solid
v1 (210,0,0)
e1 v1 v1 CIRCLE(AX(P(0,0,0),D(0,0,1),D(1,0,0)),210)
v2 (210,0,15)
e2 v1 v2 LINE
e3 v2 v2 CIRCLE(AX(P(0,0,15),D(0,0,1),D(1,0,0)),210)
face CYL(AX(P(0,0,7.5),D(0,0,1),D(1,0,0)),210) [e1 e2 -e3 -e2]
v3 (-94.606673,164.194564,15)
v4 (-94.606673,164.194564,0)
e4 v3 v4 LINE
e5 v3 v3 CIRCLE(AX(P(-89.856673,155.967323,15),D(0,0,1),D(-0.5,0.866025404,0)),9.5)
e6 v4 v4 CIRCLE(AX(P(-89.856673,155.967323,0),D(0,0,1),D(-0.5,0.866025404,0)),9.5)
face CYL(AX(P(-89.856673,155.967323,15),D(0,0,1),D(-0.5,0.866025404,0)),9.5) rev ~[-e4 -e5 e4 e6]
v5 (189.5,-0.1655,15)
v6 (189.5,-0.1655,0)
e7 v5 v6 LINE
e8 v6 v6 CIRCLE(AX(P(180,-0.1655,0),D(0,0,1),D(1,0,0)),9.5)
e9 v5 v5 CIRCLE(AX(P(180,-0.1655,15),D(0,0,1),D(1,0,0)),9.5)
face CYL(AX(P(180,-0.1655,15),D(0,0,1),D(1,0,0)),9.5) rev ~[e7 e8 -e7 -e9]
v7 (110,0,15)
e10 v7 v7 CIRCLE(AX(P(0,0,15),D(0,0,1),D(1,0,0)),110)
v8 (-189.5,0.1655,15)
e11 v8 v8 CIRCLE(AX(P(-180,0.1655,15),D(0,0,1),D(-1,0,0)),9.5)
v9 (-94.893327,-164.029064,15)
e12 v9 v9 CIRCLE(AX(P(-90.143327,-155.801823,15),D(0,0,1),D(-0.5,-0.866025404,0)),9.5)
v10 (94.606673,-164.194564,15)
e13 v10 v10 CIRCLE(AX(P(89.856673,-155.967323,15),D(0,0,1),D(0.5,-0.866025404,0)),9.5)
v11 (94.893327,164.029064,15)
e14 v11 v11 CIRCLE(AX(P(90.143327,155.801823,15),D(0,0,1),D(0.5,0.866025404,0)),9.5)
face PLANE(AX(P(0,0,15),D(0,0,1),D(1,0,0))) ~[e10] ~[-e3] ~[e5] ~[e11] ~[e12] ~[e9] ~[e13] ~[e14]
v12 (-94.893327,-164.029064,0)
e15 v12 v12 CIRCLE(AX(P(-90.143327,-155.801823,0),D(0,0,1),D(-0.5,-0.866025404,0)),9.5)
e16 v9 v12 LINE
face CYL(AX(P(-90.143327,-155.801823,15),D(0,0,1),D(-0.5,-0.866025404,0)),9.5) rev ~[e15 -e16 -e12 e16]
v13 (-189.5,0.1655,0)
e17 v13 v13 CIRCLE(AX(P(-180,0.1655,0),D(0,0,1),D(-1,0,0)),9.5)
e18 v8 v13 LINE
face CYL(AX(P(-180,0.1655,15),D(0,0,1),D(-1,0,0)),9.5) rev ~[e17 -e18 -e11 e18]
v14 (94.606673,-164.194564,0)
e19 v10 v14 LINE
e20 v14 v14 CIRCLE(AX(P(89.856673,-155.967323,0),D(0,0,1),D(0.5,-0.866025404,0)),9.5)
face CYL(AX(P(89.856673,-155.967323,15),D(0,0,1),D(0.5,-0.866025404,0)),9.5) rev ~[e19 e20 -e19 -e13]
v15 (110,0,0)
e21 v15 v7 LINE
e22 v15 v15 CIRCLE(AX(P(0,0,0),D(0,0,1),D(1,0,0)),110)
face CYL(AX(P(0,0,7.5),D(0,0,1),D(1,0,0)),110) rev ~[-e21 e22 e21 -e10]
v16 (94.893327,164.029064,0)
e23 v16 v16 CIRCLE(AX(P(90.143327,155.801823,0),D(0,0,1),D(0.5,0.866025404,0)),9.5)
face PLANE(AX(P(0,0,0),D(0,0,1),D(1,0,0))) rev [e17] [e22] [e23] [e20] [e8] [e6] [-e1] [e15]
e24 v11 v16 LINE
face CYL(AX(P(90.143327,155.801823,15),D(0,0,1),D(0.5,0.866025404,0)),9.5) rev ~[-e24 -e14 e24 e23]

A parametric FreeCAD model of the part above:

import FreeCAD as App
import Part
import Sketcher


def add_polygon(sketch, points):
    """Adds a closed chain of lines whose ends are joined by coincident constraints."""
    first, n = sketch.GeometryCount, len(points)
    for a, b in zip(points, points[1:] + points[:1]):
        sketch.addGeometry(Part.LineSegment(App.Vector(*a, 0), App.Vector(*b, 0)), False)
    for i in range(n):
        sketch.addConstraint(Sketcher.Constraint("Coincident", first + i, 2, first + (i + 1) % n, 1))

doc = App.newDocument("Part")
body = doc.addObject("PartDesign::Body", "Body")

sketch1 = body.newObject("Sketcher::SketchObject", "Sketch")
sketch1.AttachmentSupport = (doc.getObject("XY_Plane"), [""])
sketch1.MapMode = "FlatFace"
sketch1.AttachmentOffset = App.Placement(App.Vector(0, 0, 15), App.Rotation())
sketch1.addGeometry(Part.Circle(App.Vector(180, -0.1655, 0), App.Vector(0, 0, 1), 9.5), False)
sketch1.addConstraint([
    Sketcher.Constraint("Diameter", 0, 19.0),
    Sketcher.Constraint("DistanceX", -1, 1, 0, 3, 180.0),
    Sketcher.Constraint("DistanceY", 0, 3, -1, 1, 0.1655),
])
pad1 = body.newObject("PartDesign::Pad", "Pad")
pad1.Profile = sketch1
pad1.Length = 30
pad1.Reversed = True
body2 = doc.addObject("PartDesign::Body", "Body001")
body2.AllowCompound = True
doc.recompute()

body2.BaseFeature = body
doc.recompute()

body3 = doc.addObject("PartDesign::Body", "Body002")
body3.BaseFeature = body
body3.Placement = App.Placement(App.Vector(0, 0, 0), App.Rotation(App.Vector(0, 0, 1), 60))
boolean = body2.newObject("PartDesign::Boolean", "Boolean")
boolean.Type = "Fuse"
boolean.addObjects([body3])
doc.recompute()

body4 = doc.addObject("PartDesign::Body", "Body003")
body4.BaseFeature = body
body4.Placement = App.Placement(App.Vector(0, 0, 0), App.Rotation(App.Vector(0, 0, 1), 120))
boolean2 = body2.newObject("PartDesign::Boolean", "Boolean001")
boolean2.Type = "Fuse"
boolean2.addObjects([body4])
doc.recompute()

body5 = doc.addObject("PartDesign::Body", "Body004")
body5.BaseFeature = body
body5.Placement = App.Placement(App.Vector(0, 0, 0), App.Rotation(App.Vector(0, 0, 1), 180))
boolean3 = body2.newObject("PartDesign::Boolean", "Boolean002")
boolean3.Type = "Fuse"
boolean3.addObjects([body5])
doc.recompute()

body6 = doc.addObject("PartDesign::Body", "Body005")
body6.BaseFeature = body
body6.Placement = App.Placement(App.Vector(0, 0, 0), App.Rotation(App.Vector(0, 0, 1), 240))
boolean4 = body2.newObject("PartDesign::Boolean", "Boolean003")
boolean4.Type = "Fuse"
boolean4.addObjects([body6])
doc.recompute()

body.Placement = App.Placement(App.Vector(0, 0, 0), App.Rotation(App.Vector(0, 0, 1), 300))
boolean5 = body2.newObject("PartDesign::Boolean", "Boolean004")
boolean5.Type = "Fuse"
boolean5.addObjects([body])
body7 = doc.addObject("PartDesign::Body", "Body006")

sketch2 = body7.newObject("Sketcher::SketchObject", "Sketch001")
sketch2.AttachmentSupport = (doc.getObject("XZ_Plane006"), [""])
sketch2.MapMode = "FlatFace"
add_polygon(sketch2, [(110, 15), (110, 0), (210, 0), (210, 15)])
sketch2.addConstraint([
    Sketcher.Constraint("Vertical", 0),
    Sketcher.Constraint("Horizontal", 1),
    Sketcher.Constraint("Vertical", 2),
    Sketcher.Constraint("Horizontal", 3),
    Sketcher.Constraint("PointOnObject", 0, 2, -1),
    Sketcher.Constraint("DistanceX", 1, 1, 1, 2, 100.0),
    Sketcher.Constraint("DistanceY", 0, 2, 0, 1, 15.0),
    Sketcher.Constraint("DistanceX", -1, 1, 0, 2, 110.0),
])
revolution = body7.newObject("PartDesign::Revolution", "Revolution")
revolution.Profile = sketch2
revolution.ReferenceAxis = (sketch2, ["V_Axis"])
revolution.Angle = 360
doc.recompute()

boolean6 = body7.newObject("PartDesign::Boolean", "Boolean005")
boolean6.Type = "Cut"
boolean6.addObjects([body2])

doc.recompute()
